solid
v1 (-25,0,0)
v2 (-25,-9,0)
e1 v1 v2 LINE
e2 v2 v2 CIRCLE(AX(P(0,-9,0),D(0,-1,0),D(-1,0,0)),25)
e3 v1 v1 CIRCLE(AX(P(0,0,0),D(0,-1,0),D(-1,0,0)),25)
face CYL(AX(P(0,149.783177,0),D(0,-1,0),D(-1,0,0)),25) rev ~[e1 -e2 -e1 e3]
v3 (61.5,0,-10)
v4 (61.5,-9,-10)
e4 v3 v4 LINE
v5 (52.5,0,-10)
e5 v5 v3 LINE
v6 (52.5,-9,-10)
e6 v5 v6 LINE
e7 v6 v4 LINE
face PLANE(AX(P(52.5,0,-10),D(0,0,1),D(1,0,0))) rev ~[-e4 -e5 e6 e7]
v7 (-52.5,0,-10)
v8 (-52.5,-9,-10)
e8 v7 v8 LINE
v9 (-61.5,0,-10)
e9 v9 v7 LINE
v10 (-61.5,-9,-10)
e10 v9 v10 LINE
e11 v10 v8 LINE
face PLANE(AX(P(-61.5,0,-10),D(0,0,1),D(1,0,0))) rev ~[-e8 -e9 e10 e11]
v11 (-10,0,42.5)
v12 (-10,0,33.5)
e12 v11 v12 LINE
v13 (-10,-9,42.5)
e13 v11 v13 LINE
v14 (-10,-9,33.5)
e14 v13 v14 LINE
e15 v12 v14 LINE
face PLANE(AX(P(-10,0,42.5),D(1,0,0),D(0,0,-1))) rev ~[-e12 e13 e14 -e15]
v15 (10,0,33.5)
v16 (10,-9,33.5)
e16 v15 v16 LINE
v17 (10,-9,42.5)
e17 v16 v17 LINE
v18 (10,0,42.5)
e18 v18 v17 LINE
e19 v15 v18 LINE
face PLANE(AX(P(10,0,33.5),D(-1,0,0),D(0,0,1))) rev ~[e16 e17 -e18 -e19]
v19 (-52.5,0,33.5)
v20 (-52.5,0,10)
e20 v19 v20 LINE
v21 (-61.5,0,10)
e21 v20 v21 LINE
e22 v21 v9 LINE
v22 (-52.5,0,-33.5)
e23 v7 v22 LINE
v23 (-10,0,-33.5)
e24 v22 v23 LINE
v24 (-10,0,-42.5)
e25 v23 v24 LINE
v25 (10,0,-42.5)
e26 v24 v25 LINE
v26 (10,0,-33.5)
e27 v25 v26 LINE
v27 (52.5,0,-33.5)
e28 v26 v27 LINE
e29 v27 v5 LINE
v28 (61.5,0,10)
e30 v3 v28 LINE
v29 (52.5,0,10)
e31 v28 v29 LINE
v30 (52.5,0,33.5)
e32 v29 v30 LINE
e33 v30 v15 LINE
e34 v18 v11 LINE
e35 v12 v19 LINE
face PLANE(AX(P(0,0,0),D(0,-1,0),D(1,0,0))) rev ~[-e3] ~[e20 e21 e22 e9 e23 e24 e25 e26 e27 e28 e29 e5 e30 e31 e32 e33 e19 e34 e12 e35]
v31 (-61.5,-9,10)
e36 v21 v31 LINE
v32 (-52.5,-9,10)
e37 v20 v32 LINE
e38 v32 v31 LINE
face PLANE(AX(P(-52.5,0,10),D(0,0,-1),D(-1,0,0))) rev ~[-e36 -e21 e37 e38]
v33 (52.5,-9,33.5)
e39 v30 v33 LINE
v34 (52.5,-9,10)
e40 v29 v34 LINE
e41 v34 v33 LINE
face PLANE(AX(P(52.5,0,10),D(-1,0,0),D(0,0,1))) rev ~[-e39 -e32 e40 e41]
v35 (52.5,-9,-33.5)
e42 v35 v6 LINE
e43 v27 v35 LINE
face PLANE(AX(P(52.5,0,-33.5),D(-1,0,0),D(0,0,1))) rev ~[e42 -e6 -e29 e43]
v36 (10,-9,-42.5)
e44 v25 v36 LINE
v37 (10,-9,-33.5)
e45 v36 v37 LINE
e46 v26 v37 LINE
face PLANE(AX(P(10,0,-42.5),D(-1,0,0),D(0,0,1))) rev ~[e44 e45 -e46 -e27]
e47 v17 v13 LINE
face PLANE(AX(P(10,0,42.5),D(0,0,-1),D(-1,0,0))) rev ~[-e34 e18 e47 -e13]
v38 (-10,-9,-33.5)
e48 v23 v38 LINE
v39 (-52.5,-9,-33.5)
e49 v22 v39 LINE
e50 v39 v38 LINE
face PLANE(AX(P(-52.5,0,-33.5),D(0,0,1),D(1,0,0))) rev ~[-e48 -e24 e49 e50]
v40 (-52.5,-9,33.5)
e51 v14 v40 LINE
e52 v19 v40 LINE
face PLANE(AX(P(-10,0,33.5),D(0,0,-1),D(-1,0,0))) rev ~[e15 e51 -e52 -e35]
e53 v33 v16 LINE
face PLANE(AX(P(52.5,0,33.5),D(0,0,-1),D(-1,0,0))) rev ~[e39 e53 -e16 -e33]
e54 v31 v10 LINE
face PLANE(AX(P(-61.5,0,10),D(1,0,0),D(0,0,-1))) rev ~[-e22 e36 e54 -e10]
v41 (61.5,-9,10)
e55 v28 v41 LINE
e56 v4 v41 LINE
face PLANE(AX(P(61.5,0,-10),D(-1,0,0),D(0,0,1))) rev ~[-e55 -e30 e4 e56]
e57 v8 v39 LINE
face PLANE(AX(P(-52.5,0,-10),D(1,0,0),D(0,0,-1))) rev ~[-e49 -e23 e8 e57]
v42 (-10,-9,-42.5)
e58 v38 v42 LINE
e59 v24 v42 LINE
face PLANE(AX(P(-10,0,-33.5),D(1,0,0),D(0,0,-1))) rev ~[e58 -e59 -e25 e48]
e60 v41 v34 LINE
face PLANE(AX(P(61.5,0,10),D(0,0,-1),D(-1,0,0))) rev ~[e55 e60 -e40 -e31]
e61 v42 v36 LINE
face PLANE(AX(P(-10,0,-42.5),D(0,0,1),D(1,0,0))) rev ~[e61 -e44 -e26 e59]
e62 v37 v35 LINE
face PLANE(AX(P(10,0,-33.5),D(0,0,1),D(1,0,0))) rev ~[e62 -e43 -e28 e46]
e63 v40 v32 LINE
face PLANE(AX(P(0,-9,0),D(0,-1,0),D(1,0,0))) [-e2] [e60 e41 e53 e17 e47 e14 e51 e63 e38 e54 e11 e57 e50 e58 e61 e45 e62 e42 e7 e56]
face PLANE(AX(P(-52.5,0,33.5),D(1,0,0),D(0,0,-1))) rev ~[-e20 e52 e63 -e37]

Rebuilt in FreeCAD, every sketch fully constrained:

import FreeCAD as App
import Part
import Sketcher
Q = App.Units.Quantity

doc = App.newDocument("Part")
params = doc.addObject("Spreadsheet::Sheet", "Params")
for row, (alias, value) in enumerate([
    ("sketch1_width", "20 mm"),
    ("sketch1_width2", "9 mm"),
    ("sketch1_width3", "42.5 mm"),
    ("sketch1_height", "23.5 mm"),
    ("pad1_length", "9 mm"),
    ("sketch2_diameter", "50 mm"),
    ("hole_diameter", "50 mm"),
], start=1):
    params.set(f"A{row}", alias)
    params.set(f"B{row}", "=" + value)
    params.setAlias(f"B{row}", alias)

body = doc.addObject("PartDesign::Body", "Body")

sketch1 = body.newObject("Sketcher::SketchObject", "Sketch")
sketch1.AttachmentSupport = (doc.getObject("XZ_Plane"), [""])
sketch1.MapMode = "FlatFace"
sketch1.addGeometry(Part.LineSegment(App.Vector(-10, -42, 0), App.Vector(10, -42, 0)), False)
sketch1.addGeometry(Part.LineSegment(App.Vector(10, -42, 0), App.Vector(10, -34, 0)), False)
sketch1.addGeometry(Part.LineSegment(App.Vector(10, -34, 0), App.Vector(52, -34, 0)), False)
sketch1.addGeometry(Part.LineSegment(App.Vector(52, -34, 0), App.Vector(52, -10, 0)), False)
sketch1.addGeometry(Part.LineSegment(App.Vector(52, -10, 0), App.Vector(62, -10, 0)), False)
sketch1.addGeometry(Part.LineSegment(App.Vector(62, -10, 0), App.Vector(62, 10, 0)), False)
sketch1.addGeometry(Part.LineSegment(App.Vector(62, 10, 0), App.Vector(52, 10, 0)), False)
sketch1.addGeometry(Part.LineSegment(App.Vector(52, 10, 0), App.Vector(52, 34, 0)), False)
sketch1.addGeometry(Part.LineSegment(App.Vector(52, 34, 0), App.Vector(10, 34, 0)), False)
sketch1.addGeometry(Part.LineSegment(App.Vector(10, 34, 0), App.Vector(10, 42, 0)), False)
sketch1.addGeometry(Part.LineSegment(App.Vector(10, 42, 0), App.Vector(-10, 42, 0)), False)
sketch1.addGeometry(Part.LineSegment(App.Vector(-10, 42, 0), App.Vector(-10, 34, 0)), False)
sketch1.addGeometry(Part.LineSegment(App.Vector(-10, 34, 0), App.Vector(-52, 34, 0)), False)
sketch1.addGeometry(Part.LineSegment(App.Vector(-52, 34, 0), App.Vector(-52, 10, 0)), False)
sketch1.addGeometry(Part.LineSegment(App.Vector(-52, 10, 0), App.Vector(-62, 10, 0)), False)
sketch1.addGeometry(Part.LineSegment(App.Vector(-62, 10, 0), App.Vector(-62, -10, 0)), False)
sketch1.addGeometry(Part.LineSegment(App.Vector(-62, -10, 0), App.Vector(-52, -10, 0)), False)
sketch1.addGeometry(Part.LineSegment(App.Vector(-52, -10, 0), App.Vector(-52, -34, 0)), False)
sketch1.addGeometry(Part.LineSegment(App.Vector(-52, -34, 0), App.Vector(-10, -34, 0)), False)
sketch1.addGeometry(Part.LineSegment(App.Vector(-10, -34, 0), App.Vector(-10, -42, 0)), False)
sketch1.addConstraint(Sketcher.Constraint("Coincident", 0, 2, 1, 1))
sketch1.addConstraint(Sketcher.Constraint("Coincident", 1, 2, 2, 1))
sketch1.addConstraint(Sketcher.Constraint("Coincident", 2, 2, 3, 1))
sketch1.addConstraint(Sketcher.Constraint("Coincident", 3, 2, 4, 1))
sketch1.addConstraint(Sketcher.Constraint("Coincident", 4, 2, 5, 1))
sketch1.addConstraint(Sketcher.Constraint("Coincident", 5, 2, 6, 1))
sketch1.addConstraint(Sketcher.Constraint("Coincident", 6, 2, 7, 1))
sketch1.addConstraint(Sketcher.Constraint("Coincident", 7, 2, 8, 1))
sketch1.addConstraint(Sketcher.Constraint("Coincident", 8, 2, 9, 1))
sketch1.addConstraint(Sketcher.Constraint("Coincident", 9, 2, 10, 1))
sketch1.addConstraint(Sketcher.Constraint("Coincident", 10, 2, 11, 1))
sketch1.addConstraint(Sketcher.Constraint("Coincident", 11, 2, 12, 1))
sketch1.addConstraint(Sketcher.Constraint("Coincident", 12, 2, 13, 1))
sketch1.addConstraint(Sketcher.Constraint("Coincident", 13, 2, 14, 1))
sketch1.addConstraint(Sketcher.Constraint("Coincident", 14, 2, 15, 1))
sketch1.addConstraint(Sketcher.Constraint("Coincident", 15, 2, 16, 1))
sketch1.addConstraint(Sketcher.Constraint("Coincident", 16, 2, 17, 1))
sketch1.addConstraint(Sketcher.Constraint("Coincident", 17, 2, 18, 1))
sketch1.addConstraint(Sketcher.Constraint("Coincident", 18, 2, 19, 1))
sketch1.addConstraint(Sketcher.Constraint("Coincident", 19, 2, 0, 1))
sketch1.addConstraint(Sketcher.Constraint("Horizontal", 0))
sketch1.addConstraint(Sketcher.Constraint("Vertical", 1))
sketch1.addConstraint(Sketcher.Constraint("Horizontal", 2))
sketch1.addConstraint(Sketcher.Constraint("Vertical", 3))
sketch1.addConstraint(Sketcher.Constraint("Horizontal", 4))
sketch1.addConstraint(Sketcher.Constraint("Vertical", 5))
sketch1.addConstraint(Sketcher.Constraint("Horizontal", 6))
sketch1.addConstraint(Sketcher.Constraint("Vertical", 7))
sketch1.addConstraint(Sketcher.Constraint("Horizontal", 8))
sketch1.addConstraint(Sketcher.Constraint("Vertical", 9))
sketch1.addConstraint(Sketcher.Constraint("Horizontal", 10))
sketch1.addConstraint(Sketcher.Constraint("Vertical", 11))
sketch1.addConstraint(Sketcher.Constraint("Horizontal", 12))
sketch1.addConstraint(Sketcher.Constraint("Vertical", 13))
sketch1.addConstraint(Sketcher.Constraint("Horizontal", 14))
sketch1.addConstraint(Sketcher.Constraint("Vertical", 15))
sketch1.addConstraint(Sketcher.Constraint("Horizontal", 16))
sketch1.addConstraint(Sketcher.Constraint("Vertical", 17))
sketch1.addConstraint(Sketcher.Constraint("Horizontal", 18))
sketch1.addConstraint(Sketcher.Constraint("Vertical", 19))
sketch1.addConstraint(Sketcher.Constraint("Symmetric", 0, 2, 10, 2, -1, 1))
sketch1.addConstraint(Sketcher.Constraint("Symmetric", 2, 2, 12, 2, -1, 1))
sketch1.addConstraint(Sketcher.Constraint("Symmetric", 4, 2, 14, 2, -1, 1))
sketch1.addConstraint(Sketcher.Constraint("Symmetric", 6, 2, 16, 2, -1, 1))
sketch1.addConstraint(Sketcher.Constraint("Symmetric", 8, 2, 18, 2, -1, 1))
sketch1.addConstraint(Sketcher.Constraint("Symmetric", 8, 2, 11, 2, -2))
sketch1.addConstraint(Sketcher.Constraint("Symmetric", 6, 2, 13, 2, -2))
sketch1.addConstraint(Sketcher.Constraint("Equal", 16, 1))
sketch1.addConstraint(Sketcher.Constraint("Equal", 10, 5))
sketch1.addConstraint(Sketcher.Constraint("DistanceX", 0, 1, 0, 2, Q("20 mm")))
sketch1.addConstraint(Sketcher.Constraint("DistanceX", 4, 1, 4, 2, Q("9 mm")))
sketch1.addConstraint(Sketcher.Constraint("DistanceX", 2, 1, 2, 2, Q("42.5 mm")))
sketch1.addConstraint(Sketcher.Constraint("DistanceY", 3, 1, 3, 2, Q("23.5 mm")))
sketch1.setExpression("Constraints[49]", "Params.sketch1_width")
sketch1.setExpression("Constraints[50]", "Params.sketch1_width2")
sketch1.setExpression("Constraints[51]", "Params.sketch1_width3")
sketch1.setExpression("Constraints[52]", "Params.sketch1_height")
pad1 = body.newObject("PartDesign::Pad", "Pad")
pad1.Profile = sketch1
pad1.setExpression("Length", "Params.pad1_length")

sketch2 = body.newObject("Sketcher::SketchObject", "Sketch001")
sketch2.AttachmentSupport = (doc.getObject("XZ_Plane"), [""])
sketch2.MapMode = "FlatFace"
sketch2.addGeometry(Part.Circle(App.Vector(0, 0, 0), App.Vector(0, 0, 1), 25), False)
sketch2.addConstraint(Sketcher.Constraint("Coincident", 0, 3, -1, 1))
sketch2.addConstraint(Sketcher.Constraint("Diameter", 0, Q("50 mm")))
sketch2.setExpression("Constraints[1]", "Params.sketch2_diameter")
doc.recompute()
hole = body.newObject("PartDesign::Hole", "Hole")
hole.Profile = sketch2
hole.ThreadType = "None"
hole.setExpression("Diameter", "Params.hole_diameter")
hole.DepthType = "ThroughAll"
hole.Reversed = True

doc.recompute()
